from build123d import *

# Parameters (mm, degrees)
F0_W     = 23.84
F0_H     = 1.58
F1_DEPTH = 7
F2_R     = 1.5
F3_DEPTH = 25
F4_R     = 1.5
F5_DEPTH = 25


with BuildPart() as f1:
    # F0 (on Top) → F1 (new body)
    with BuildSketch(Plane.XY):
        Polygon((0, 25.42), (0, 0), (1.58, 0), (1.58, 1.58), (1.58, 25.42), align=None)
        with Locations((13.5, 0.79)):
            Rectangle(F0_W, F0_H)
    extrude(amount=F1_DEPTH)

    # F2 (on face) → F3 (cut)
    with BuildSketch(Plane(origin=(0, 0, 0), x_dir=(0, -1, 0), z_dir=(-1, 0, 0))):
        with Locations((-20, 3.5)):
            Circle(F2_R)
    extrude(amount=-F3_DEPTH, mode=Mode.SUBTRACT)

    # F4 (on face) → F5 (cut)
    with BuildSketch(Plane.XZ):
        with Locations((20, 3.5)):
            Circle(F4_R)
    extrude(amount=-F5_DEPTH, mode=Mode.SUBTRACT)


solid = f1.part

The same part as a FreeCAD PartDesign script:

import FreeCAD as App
import Part
import Sketcher
from FreeCAD import Vector
Q = App.Units.Quantity


def add_polygon(sketch, points):
    """Adds a closed chain of lines whose ends are joined by coincident constraints."""
    first, n = sketch.GeometryCount, len(points)
    for a, b in zip(points, points[1:] + points[:1]):
        sketch.addGeometry(Part.LineSegment(App.Vector(*a, 0), App.Vector(*b, 0)), False)
    for i in range(n):
        sketch.addConstraint(Sketcher.Constraint("Coincident", first + i, 2, first + (i + 1) % n, 1))

doc = App.newDocument("Part")
body = doc.addObject("PartDesign::Body", "Body")

# Sketch on XY plane
sketch1 = doc.addObject("Sketcher::SketchObject", "Sketch")
body.addObject(sketch1)
sketch1.AttachmentSupport = (doc.XY_Plane, [""])
sketch1.MapMode = "FlatFace"
add_polygon(sketch1, [(0, 25.42), (0, 0), (25.42, 0), (25.42, 1.58), (1.58, 1.58), (1.58, 25.42)])  # lines 0-5
sketch1.addConstraint([
    Sketcher.Constraint("Vertical", 0),
    Sketcher.Constraint("Horizontal", 1),
    Sketcher.Constraint("Vertical", 2),
    Sketcher.Constraint("Horizontal", 3),
    Sketcher.Constraint("Vertical", 4),
    Sketcher.Constraint("Horizontal", 5),
    Sketcher.Constraint("Coincident", 0, 2, -1, 1),
    Sketcher.Constraint("Equal", 1, 0),
    Sketcher.Constraint("Equal", 5, 2),
    Sketcher.Constraint("DistanceX", 1, 1, 1, 2, Q("25.42 mm")),
    Sketcher.Constraint("DistanceX", 3, 2, 3, 1, Q("23.84 mm")),
])
pad1 = doc.addObject("PartDesign::Pad", "Pad")
body.addObject(pad1)
pad1.Profile = sketch1
pad1.Length = 7

# Sketch on YZ plane
sketch2 = doc.addObject("Sketcher::SketchObject", "Sketch001")
body.addObject(sketch2)
sketch2.AttachmentSupport = (doc.YZ_Plane, [""])
sketch2.MapMode = "FlatFace"
sketch2.addGeometry(Part.Circle(Vector(20, 3.5, 0), Vector(0, 0, 1), 1.5), False)
sketch2.addConstraint([
    Sketcher.Constraint("Diameter", 0, Q("3 mm")),
    Sketcher.Constraint("DistanceX", -1, 1, 0, 3, Q("20 mm")),
    Sketcher.Constraint("DistanceY", -1, 1, 0, 3, Q("3.5 mm")),
])
pocket1 = doc.addObject("PartDesign::Pocket", "Pocket")
body.addObject(pocket1)
pocket1.Profile = sketch2
pocket1.Length = 25
pocket1.Reversed = True

# Sketch on XZ plane
sketch3 = doc.addObject("Sketcher::SketchObject", "Sketch002")
body.addObject(sketch3)
sketch3.AttachmentSupport = (doc.XZ_Plane, [""])
sketch3.MapMode = "FlatFace"
sketch3.addGeometry(Part.Circle(Vector(20, 3.5, 0), Vector(0, 0, 1), 1.5), False)
sketch3.addConstraint([
    Sketcher.Constraint("Diameter", 0, Q("3 mm")),
    Sketcher.Constraint("DistanceX", -1, 1, 0, 3, Q("20 mm")),
    Sketcher.Constraint("DistanceY", -1, 1, 0, 3, Q("3.5 mm")),
])
pocket2 = doc.addObject("PartDesign::Pocket", "Pocket001")
body.addObject(pocket2)
pocket2.Profile = sketch3
pocket2.Length = 25

doc.recompute()
